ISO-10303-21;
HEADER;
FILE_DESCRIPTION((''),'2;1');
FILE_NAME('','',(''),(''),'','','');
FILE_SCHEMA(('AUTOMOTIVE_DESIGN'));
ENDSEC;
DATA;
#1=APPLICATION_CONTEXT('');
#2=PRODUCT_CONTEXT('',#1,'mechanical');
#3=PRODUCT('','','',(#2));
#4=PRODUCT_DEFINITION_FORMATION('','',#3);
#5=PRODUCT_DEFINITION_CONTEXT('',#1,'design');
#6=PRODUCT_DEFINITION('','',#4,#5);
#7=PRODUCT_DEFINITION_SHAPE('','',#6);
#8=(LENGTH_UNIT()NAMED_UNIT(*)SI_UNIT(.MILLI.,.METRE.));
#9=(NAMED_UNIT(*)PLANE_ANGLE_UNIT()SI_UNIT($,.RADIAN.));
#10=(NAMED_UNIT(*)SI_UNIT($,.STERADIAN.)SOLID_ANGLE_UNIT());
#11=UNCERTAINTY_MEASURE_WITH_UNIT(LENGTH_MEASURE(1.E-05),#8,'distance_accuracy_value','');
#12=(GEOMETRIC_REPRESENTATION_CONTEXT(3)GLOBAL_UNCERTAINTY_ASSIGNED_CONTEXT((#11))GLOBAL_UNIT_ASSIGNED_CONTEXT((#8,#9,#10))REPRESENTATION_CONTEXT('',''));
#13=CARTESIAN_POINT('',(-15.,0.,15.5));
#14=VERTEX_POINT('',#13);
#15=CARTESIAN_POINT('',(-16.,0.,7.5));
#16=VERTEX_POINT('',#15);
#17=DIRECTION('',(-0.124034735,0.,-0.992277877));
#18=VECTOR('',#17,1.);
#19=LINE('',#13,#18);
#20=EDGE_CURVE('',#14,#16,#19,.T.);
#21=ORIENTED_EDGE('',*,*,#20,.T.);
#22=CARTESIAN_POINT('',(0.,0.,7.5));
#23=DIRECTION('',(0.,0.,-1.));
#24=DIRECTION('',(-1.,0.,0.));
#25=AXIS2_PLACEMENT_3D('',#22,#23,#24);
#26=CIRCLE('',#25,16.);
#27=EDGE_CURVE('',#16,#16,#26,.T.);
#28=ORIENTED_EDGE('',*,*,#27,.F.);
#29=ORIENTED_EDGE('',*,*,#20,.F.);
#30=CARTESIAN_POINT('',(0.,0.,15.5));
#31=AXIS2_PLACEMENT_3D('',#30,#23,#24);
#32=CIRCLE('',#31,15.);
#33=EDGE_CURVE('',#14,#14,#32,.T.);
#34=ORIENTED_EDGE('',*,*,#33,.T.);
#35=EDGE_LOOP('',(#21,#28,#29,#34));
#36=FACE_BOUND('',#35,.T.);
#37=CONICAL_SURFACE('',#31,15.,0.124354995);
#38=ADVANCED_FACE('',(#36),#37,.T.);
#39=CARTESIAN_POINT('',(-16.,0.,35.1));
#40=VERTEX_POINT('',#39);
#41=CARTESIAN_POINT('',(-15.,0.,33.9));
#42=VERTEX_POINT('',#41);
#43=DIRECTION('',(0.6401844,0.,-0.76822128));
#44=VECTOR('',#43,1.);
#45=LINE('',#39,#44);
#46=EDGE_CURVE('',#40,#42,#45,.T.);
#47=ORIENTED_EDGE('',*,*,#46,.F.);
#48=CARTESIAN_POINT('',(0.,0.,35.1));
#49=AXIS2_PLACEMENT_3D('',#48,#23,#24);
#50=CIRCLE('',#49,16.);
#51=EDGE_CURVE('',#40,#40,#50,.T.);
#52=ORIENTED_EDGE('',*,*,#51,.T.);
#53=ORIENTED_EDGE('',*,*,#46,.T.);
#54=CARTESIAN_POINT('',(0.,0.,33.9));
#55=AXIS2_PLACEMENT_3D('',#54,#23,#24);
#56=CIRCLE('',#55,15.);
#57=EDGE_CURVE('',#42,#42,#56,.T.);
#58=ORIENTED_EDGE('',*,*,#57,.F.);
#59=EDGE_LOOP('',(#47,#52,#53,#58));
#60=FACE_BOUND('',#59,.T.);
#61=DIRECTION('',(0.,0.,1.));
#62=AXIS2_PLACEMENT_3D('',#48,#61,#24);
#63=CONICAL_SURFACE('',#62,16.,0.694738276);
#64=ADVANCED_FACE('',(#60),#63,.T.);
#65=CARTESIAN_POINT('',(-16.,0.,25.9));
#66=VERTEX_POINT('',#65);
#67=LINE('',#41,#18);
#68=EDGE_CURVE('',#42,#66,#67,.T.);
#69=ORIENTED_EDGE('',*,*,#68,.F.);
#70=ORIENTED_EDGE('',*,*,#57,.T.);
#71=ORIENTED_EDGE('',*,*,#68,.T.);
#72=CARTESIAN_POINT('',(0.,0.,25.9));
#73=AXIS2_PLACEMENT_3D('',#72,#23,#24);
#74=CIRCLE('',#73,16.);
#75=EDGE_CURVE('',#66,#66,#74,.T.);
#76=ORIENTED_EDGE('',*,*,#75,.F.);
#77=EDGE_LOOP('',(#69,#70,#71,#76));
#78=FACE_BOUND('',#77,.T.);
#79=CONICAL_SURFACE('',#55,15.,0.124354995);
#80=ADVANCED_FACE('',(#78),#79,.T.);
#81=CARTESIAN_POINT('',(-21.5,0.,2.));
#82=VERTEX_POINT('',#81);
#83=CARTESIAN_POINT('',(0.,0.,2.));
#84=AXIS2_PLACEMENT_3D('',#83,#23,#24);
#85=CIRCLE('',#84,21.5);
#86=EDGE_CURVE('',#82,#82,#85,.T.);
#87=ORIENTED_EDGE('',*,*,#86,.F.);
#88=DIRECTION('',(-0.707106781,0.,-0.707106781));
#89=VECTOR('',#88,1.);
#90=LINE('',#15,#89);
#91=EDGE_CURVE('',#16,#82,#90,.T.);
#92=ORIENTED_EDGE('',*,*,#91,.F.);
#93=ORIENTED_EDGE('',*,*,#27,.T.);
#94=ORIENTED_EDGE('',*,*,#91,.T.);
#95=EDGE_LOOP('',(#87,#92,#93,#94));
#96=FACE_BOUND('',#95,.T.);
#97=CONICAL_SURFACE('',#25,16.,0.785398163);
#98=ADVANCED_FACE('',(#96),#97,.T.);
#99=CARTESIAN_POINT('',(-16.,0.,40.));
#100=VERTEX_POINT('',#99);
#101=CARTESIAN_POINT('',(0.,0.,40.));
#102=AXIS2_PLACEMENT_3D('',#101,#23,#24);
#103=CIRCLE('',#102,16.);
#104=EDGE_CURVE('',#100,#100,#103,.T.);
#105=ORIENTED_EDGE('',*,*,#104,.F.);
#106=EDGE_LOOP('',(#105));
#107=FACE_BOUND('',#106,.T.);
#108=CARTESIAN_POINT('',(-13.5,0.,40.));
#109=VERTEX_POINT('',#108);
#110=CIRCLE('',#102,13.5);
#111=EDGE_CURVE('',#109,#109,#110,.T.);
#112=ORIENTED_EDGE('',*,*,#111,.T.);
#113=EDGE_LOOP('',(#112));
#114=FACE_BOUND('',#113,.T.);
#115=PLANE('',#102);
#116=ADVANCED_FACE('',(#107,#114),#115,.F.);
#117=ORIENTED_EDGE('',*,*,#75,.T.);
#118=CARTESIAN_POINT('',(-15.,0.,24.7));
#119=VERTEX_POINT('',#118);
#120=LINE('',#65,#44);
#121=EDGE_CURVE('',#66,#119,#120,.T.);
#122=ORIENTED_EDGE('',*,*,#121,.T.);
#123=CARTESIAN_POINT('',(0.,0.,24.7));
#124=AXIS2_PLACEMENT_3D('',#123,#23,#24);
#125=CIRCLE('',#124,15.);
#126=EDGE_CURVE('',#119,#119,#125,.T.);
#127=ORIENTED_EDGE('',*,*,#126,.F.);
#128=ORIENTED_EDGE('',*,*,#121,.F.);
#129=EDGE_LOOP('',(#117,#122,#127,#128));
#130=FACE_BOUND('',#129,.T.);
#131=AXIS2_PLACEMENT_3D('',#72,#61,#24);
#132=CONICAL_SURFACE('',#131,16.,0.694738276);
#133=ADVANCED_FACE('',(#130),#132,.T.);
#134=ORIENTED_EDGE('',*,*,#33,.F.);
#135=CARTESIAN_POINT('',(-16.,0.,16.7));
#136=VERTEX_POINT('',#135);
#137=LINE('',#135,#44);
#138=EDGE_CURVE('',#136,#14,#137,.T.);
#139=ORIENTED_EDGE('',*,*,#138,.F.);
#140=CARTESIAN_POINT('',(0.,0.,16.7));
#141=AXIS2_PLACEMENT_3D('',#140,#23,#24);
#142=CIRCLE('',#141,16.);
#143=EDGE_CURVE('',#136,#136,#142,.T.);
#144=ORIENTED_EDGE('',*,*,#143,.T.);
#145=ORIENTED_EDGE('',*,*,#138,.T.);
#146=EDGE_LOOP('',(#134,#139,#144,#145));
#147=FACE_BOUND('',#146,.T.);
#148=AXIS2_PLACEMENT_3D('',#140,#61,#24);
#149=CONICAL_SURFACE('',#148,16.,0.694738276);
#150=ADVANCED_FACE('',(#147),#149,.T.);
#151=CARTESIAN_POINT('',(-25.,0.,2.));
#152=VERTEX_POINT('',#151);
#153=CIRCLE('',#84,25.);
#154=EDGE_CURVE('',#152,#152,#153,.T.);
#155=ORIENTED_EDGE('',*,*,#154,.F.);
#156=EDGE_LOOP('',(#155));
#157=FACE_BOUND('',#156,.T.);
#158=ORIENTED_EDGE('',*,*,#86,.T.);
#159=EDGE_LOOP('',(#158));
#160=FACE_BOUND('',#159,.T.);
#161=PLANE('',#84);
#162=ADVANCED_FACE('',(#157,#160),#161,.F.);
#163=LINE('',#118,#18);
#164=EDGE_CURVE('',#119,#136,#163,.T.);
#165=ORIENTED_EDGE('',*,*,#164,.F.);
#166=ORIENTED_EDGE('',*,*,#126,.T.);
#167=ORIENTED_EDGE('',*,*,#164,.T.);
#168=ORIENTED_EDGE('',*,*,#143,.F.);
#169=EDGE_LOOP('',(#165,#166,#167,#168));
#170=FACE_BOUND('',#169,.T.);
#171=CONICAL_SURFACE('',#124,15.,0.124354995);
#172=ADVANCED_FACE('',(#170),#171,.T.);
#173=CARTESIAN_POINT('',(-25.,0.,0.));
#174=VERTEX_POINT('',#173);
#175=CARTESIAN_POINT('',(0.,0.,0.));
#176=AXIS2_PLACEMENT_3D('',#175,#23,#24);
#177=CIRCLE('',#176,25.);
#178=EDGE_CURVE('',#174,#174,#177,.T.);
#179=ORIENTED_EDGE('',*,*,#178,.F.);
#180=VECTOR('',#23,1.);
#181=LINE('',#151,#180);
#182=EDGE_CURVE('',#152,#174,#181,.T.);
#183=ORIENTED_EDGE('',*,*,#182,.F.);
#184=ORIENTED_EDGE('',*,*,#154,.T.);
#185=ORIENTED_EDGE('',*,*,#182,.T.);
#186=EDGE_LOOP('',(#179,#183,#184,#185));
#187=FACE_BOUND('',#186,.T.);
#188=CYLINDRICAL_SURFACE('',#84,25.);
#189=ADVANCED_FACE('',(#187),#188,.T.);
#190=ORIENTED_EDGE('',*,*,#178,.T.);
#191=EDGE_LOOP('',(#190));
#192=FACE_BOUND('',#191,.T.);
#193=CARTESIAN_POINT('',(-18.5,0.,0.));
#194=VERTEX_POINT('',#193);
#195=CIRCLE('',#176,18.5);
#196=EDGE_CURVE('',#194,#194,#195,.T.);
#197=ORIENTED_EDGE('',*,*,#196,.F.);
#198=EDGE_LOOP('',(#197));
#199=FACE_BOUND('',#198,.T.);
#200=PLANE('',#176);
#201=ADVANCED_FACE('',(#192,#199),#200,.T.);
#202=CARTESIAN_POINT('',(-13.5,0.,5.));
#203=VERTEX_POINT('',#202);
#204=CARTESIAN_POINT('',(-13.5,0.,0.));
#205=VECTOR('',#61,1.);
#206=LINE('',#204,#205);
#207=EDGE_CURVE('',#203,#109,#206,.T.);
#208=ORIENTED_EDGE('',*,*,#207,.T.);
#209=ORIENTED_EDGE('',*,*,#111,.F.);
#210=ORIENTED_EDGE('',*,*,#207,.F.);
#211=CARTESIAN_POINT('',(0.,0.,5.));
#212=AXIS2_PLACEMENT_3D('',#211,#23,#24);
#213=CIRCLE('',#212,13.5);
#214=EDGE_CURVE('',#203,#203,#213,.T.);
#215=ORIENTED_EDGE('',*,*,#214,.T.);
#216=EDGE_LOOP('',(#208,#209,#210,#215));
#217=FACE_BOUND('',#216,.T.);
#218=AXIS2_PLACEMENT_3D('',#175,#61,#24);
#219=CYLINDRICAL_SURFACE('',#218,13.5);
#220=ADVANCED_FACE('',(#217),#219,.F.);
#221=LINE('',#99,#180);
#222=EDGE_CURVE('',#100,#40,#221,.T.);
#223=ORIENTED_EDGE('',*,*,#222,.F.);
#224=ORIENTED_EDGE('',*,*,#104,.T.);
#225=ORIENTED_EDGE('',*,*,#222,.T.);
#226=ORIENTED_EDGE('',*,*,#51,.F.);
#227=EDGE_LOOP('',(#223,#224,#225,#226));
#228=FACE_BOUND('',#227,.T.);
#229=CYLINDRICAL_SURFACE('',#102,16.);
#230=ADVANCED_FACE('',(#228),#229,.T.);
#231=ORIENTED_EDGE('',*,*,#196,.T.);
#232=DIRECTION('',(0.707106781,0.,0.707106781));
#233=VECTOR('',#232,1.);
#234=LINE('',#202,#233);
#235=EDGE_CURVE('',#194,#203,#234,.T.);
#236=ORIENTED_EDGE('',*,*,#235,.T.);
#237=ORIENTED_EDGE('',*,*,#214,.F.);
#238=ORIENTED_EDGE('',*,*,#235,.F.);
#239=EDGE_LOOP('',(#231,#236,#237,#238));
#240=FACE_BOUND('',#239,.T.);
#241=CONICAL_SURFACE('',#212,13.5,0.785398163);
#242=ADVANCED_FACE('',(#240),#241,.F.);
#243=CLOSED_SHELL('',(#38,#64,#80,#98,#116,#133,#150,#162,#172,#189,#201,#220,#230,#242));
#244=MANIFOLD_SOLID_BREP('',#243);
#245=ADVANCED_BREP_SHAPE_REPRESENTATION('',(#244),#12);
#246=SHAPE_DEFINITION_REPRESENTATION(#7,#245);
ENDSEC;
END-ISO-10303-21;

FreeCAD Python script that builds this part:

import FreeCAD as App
import Part
import Sketcher

V = App.Vector
Q = App.Units.Quantity


def edges_at(feature, points):
    """Names of the edges that pass closest to the given points."""
    edges = feature.Shape.Edges
    near = lambda p: min(range(len(edges)), key=lambda i: edges[i].distToShape(Part.Vertex(*p))[0])
    return sorted({f"Edge{near(p) + 1}" for p in points})

doc = App.newDocument("Part")
body = doc.addObject("PartDesign::Body", "Body")

sketch1 = body.newObject("Sketcher::SketchObject", "Sketch")
sketch1.AttachmentSupport = (doc.getObject("XZ_Plane"), [""])
sketch1.MapMode = "FlatFace"
sketch1.addGeometry([
    Part.LineSegment(V(-25, 0, 0), V(-13.5, 0, 0)),
    Part.LineSegment(V(-13.5, 0, 0), V(-13.5, 40, 0)),
    Part.LineSegment(V(-13.5, 40, 0), V(-16, 40, 0)),
    Part.LineSegment(V(-16, 40, 0), V(-16, 35.1, 0)),
    Part.LineSegment(V(-16, 35.1, 0), V(-15, 33.9, 0)),
    Part.LineSegment(V(-15, 33.9, 0), V(-16, 25.9, 0)),
    Part.LineSegment(V(-16, 25.9, 0), V(-15, 24.7, 0)),
    Part.LineSegment(V(-15, 24.7, 0), V(-16, 16.7, 0)),
    Part.LineSegment(V(-16, 16.7, 0), V(-15, 15.5, 0)),
    Part.LineSegment(V(-15, 15.5, 0), V(-16, 7.5, 0)),
    Part.LineSegment(V(-16, 7.5, 0), V(-21.5, 2, 0)),
    Part.LineSegment(V(-21.5, 2, 0), V(-25, 2, 0)),
    Part.LineSegment(V(-25, 2, 0), V(-25, 0, 0)),
], False)
sketch1.addConstraint([
    Sketcher.Constraint("Coincident", 0, 2, 1, 1),
    Sketcher.Constraint("Coincident", 1, 2, 2, 1),
    Sketcher.Constraint("Coincident", 2, 2, 3, 1),
    Sketcher.Constraint("Coincident", 3, 2, 4, 1),
    Sketcher.Constraint("Coincident", 4, 2, 5, 1),
    Sketcher.Constraint("Coincident", 5, 2, 6, 1),
    Sketcher.Constraint("Coincident", 6, 2, 7, 1),
    Sketcher.Constraint("Coincident", 7, 2, 8, 1),
    Sketcher.Constraint("Coincident", 8, 2, 9, 1),
    Sketcher.Constraint("Coincident", 9, 2, 10, 1),
    Sketcher.Constraint("Coincident", 10, 2, 11, 1),
    Sketcher.Constraint("Coincident", 11, 2, 12, 1),
    Sketcher.Constraint("Coincident", 12, 2, 0, 1),
    Sketcher.Constraint("Horizontal", 0),
    Sketcher.Constraint("Vertical", 1),
    Sketcher.Constraint("Horizontal", 2),
    Sketcher.Constraint("Vertical", 3),
    Sketcher.Constraint("Horizontal", 11),
    Sketcher.Constraint("Vertical", 12),
    Sketcher.Constraint("PointOnObject", 0, 2, -1),
    Sketcher.Constraint("Parallel", 4, 6),
    Sketcher.Constraint("Parallel", 5, 7),
    Sketcher.Constraint("Parallel", 6, 8),
    Sketcher.Constraint("Parallel", 7, 9),
    Sketcher.Constraint("Vertical", 3, 2, 5, 2),
    Sketcher.Constraint("Vertical", 4, 2, 6, 2),
    Sketcher.Constraint("Vertical", 5, 2, 7, 2),
    Sketcher.Constraint("Vertical", 6, 2, 8, 2),
    Sketcher.Constraint("Vertical", 7, 2, 9, 2),
    Sketcher.Constraint("DistanceY", 1, 1, 1, 2, 40.0),
    Sketcher.Constraint("DistanceY", 12, 2, 12, 1, 2.0),
    Sketcher.Constraint("Angle", 10, Q("-135 deg")),
    Sketcher.Constraint("DistanceX", 0, 1, 0, 2, 11.5),
    Sketcher.Constraint("DistanceX", 2, 2, 2, 1, 2.5),
    Sketcher.Constraint("DistanceX", 11, 2, 11, 1, 3.5),
    Sketcher.Constraint("DistanceY", 3, 2, 3, 1, 4.9),
    Sketcher.Constraint("DistanceX", 2, 2, -1, 1, 16.0),
    Sketcher.Constraint("DistanceX", 4, 2, -1, 1, 15.0),
    Sketcher.Constraint("DistanceY", 5, 2, 4, 2, 8.0),
])
revolution = body.newObject("PartDesign::Revolution", "Revolution")
revolution.Profile = sketch1
revolution.ReferenceAxis = (sketch1, ["V_Axis"])
revolution.Angle = 360
doc.recompute()

chamfer = body.newObject("PartDesign::Chamfer", "Chamfer")
chamfer.Base = (revolution, edges_at(revolution, [(13.5, 0, 0)]))
chamfer.Size = 5

doc.recompute()
